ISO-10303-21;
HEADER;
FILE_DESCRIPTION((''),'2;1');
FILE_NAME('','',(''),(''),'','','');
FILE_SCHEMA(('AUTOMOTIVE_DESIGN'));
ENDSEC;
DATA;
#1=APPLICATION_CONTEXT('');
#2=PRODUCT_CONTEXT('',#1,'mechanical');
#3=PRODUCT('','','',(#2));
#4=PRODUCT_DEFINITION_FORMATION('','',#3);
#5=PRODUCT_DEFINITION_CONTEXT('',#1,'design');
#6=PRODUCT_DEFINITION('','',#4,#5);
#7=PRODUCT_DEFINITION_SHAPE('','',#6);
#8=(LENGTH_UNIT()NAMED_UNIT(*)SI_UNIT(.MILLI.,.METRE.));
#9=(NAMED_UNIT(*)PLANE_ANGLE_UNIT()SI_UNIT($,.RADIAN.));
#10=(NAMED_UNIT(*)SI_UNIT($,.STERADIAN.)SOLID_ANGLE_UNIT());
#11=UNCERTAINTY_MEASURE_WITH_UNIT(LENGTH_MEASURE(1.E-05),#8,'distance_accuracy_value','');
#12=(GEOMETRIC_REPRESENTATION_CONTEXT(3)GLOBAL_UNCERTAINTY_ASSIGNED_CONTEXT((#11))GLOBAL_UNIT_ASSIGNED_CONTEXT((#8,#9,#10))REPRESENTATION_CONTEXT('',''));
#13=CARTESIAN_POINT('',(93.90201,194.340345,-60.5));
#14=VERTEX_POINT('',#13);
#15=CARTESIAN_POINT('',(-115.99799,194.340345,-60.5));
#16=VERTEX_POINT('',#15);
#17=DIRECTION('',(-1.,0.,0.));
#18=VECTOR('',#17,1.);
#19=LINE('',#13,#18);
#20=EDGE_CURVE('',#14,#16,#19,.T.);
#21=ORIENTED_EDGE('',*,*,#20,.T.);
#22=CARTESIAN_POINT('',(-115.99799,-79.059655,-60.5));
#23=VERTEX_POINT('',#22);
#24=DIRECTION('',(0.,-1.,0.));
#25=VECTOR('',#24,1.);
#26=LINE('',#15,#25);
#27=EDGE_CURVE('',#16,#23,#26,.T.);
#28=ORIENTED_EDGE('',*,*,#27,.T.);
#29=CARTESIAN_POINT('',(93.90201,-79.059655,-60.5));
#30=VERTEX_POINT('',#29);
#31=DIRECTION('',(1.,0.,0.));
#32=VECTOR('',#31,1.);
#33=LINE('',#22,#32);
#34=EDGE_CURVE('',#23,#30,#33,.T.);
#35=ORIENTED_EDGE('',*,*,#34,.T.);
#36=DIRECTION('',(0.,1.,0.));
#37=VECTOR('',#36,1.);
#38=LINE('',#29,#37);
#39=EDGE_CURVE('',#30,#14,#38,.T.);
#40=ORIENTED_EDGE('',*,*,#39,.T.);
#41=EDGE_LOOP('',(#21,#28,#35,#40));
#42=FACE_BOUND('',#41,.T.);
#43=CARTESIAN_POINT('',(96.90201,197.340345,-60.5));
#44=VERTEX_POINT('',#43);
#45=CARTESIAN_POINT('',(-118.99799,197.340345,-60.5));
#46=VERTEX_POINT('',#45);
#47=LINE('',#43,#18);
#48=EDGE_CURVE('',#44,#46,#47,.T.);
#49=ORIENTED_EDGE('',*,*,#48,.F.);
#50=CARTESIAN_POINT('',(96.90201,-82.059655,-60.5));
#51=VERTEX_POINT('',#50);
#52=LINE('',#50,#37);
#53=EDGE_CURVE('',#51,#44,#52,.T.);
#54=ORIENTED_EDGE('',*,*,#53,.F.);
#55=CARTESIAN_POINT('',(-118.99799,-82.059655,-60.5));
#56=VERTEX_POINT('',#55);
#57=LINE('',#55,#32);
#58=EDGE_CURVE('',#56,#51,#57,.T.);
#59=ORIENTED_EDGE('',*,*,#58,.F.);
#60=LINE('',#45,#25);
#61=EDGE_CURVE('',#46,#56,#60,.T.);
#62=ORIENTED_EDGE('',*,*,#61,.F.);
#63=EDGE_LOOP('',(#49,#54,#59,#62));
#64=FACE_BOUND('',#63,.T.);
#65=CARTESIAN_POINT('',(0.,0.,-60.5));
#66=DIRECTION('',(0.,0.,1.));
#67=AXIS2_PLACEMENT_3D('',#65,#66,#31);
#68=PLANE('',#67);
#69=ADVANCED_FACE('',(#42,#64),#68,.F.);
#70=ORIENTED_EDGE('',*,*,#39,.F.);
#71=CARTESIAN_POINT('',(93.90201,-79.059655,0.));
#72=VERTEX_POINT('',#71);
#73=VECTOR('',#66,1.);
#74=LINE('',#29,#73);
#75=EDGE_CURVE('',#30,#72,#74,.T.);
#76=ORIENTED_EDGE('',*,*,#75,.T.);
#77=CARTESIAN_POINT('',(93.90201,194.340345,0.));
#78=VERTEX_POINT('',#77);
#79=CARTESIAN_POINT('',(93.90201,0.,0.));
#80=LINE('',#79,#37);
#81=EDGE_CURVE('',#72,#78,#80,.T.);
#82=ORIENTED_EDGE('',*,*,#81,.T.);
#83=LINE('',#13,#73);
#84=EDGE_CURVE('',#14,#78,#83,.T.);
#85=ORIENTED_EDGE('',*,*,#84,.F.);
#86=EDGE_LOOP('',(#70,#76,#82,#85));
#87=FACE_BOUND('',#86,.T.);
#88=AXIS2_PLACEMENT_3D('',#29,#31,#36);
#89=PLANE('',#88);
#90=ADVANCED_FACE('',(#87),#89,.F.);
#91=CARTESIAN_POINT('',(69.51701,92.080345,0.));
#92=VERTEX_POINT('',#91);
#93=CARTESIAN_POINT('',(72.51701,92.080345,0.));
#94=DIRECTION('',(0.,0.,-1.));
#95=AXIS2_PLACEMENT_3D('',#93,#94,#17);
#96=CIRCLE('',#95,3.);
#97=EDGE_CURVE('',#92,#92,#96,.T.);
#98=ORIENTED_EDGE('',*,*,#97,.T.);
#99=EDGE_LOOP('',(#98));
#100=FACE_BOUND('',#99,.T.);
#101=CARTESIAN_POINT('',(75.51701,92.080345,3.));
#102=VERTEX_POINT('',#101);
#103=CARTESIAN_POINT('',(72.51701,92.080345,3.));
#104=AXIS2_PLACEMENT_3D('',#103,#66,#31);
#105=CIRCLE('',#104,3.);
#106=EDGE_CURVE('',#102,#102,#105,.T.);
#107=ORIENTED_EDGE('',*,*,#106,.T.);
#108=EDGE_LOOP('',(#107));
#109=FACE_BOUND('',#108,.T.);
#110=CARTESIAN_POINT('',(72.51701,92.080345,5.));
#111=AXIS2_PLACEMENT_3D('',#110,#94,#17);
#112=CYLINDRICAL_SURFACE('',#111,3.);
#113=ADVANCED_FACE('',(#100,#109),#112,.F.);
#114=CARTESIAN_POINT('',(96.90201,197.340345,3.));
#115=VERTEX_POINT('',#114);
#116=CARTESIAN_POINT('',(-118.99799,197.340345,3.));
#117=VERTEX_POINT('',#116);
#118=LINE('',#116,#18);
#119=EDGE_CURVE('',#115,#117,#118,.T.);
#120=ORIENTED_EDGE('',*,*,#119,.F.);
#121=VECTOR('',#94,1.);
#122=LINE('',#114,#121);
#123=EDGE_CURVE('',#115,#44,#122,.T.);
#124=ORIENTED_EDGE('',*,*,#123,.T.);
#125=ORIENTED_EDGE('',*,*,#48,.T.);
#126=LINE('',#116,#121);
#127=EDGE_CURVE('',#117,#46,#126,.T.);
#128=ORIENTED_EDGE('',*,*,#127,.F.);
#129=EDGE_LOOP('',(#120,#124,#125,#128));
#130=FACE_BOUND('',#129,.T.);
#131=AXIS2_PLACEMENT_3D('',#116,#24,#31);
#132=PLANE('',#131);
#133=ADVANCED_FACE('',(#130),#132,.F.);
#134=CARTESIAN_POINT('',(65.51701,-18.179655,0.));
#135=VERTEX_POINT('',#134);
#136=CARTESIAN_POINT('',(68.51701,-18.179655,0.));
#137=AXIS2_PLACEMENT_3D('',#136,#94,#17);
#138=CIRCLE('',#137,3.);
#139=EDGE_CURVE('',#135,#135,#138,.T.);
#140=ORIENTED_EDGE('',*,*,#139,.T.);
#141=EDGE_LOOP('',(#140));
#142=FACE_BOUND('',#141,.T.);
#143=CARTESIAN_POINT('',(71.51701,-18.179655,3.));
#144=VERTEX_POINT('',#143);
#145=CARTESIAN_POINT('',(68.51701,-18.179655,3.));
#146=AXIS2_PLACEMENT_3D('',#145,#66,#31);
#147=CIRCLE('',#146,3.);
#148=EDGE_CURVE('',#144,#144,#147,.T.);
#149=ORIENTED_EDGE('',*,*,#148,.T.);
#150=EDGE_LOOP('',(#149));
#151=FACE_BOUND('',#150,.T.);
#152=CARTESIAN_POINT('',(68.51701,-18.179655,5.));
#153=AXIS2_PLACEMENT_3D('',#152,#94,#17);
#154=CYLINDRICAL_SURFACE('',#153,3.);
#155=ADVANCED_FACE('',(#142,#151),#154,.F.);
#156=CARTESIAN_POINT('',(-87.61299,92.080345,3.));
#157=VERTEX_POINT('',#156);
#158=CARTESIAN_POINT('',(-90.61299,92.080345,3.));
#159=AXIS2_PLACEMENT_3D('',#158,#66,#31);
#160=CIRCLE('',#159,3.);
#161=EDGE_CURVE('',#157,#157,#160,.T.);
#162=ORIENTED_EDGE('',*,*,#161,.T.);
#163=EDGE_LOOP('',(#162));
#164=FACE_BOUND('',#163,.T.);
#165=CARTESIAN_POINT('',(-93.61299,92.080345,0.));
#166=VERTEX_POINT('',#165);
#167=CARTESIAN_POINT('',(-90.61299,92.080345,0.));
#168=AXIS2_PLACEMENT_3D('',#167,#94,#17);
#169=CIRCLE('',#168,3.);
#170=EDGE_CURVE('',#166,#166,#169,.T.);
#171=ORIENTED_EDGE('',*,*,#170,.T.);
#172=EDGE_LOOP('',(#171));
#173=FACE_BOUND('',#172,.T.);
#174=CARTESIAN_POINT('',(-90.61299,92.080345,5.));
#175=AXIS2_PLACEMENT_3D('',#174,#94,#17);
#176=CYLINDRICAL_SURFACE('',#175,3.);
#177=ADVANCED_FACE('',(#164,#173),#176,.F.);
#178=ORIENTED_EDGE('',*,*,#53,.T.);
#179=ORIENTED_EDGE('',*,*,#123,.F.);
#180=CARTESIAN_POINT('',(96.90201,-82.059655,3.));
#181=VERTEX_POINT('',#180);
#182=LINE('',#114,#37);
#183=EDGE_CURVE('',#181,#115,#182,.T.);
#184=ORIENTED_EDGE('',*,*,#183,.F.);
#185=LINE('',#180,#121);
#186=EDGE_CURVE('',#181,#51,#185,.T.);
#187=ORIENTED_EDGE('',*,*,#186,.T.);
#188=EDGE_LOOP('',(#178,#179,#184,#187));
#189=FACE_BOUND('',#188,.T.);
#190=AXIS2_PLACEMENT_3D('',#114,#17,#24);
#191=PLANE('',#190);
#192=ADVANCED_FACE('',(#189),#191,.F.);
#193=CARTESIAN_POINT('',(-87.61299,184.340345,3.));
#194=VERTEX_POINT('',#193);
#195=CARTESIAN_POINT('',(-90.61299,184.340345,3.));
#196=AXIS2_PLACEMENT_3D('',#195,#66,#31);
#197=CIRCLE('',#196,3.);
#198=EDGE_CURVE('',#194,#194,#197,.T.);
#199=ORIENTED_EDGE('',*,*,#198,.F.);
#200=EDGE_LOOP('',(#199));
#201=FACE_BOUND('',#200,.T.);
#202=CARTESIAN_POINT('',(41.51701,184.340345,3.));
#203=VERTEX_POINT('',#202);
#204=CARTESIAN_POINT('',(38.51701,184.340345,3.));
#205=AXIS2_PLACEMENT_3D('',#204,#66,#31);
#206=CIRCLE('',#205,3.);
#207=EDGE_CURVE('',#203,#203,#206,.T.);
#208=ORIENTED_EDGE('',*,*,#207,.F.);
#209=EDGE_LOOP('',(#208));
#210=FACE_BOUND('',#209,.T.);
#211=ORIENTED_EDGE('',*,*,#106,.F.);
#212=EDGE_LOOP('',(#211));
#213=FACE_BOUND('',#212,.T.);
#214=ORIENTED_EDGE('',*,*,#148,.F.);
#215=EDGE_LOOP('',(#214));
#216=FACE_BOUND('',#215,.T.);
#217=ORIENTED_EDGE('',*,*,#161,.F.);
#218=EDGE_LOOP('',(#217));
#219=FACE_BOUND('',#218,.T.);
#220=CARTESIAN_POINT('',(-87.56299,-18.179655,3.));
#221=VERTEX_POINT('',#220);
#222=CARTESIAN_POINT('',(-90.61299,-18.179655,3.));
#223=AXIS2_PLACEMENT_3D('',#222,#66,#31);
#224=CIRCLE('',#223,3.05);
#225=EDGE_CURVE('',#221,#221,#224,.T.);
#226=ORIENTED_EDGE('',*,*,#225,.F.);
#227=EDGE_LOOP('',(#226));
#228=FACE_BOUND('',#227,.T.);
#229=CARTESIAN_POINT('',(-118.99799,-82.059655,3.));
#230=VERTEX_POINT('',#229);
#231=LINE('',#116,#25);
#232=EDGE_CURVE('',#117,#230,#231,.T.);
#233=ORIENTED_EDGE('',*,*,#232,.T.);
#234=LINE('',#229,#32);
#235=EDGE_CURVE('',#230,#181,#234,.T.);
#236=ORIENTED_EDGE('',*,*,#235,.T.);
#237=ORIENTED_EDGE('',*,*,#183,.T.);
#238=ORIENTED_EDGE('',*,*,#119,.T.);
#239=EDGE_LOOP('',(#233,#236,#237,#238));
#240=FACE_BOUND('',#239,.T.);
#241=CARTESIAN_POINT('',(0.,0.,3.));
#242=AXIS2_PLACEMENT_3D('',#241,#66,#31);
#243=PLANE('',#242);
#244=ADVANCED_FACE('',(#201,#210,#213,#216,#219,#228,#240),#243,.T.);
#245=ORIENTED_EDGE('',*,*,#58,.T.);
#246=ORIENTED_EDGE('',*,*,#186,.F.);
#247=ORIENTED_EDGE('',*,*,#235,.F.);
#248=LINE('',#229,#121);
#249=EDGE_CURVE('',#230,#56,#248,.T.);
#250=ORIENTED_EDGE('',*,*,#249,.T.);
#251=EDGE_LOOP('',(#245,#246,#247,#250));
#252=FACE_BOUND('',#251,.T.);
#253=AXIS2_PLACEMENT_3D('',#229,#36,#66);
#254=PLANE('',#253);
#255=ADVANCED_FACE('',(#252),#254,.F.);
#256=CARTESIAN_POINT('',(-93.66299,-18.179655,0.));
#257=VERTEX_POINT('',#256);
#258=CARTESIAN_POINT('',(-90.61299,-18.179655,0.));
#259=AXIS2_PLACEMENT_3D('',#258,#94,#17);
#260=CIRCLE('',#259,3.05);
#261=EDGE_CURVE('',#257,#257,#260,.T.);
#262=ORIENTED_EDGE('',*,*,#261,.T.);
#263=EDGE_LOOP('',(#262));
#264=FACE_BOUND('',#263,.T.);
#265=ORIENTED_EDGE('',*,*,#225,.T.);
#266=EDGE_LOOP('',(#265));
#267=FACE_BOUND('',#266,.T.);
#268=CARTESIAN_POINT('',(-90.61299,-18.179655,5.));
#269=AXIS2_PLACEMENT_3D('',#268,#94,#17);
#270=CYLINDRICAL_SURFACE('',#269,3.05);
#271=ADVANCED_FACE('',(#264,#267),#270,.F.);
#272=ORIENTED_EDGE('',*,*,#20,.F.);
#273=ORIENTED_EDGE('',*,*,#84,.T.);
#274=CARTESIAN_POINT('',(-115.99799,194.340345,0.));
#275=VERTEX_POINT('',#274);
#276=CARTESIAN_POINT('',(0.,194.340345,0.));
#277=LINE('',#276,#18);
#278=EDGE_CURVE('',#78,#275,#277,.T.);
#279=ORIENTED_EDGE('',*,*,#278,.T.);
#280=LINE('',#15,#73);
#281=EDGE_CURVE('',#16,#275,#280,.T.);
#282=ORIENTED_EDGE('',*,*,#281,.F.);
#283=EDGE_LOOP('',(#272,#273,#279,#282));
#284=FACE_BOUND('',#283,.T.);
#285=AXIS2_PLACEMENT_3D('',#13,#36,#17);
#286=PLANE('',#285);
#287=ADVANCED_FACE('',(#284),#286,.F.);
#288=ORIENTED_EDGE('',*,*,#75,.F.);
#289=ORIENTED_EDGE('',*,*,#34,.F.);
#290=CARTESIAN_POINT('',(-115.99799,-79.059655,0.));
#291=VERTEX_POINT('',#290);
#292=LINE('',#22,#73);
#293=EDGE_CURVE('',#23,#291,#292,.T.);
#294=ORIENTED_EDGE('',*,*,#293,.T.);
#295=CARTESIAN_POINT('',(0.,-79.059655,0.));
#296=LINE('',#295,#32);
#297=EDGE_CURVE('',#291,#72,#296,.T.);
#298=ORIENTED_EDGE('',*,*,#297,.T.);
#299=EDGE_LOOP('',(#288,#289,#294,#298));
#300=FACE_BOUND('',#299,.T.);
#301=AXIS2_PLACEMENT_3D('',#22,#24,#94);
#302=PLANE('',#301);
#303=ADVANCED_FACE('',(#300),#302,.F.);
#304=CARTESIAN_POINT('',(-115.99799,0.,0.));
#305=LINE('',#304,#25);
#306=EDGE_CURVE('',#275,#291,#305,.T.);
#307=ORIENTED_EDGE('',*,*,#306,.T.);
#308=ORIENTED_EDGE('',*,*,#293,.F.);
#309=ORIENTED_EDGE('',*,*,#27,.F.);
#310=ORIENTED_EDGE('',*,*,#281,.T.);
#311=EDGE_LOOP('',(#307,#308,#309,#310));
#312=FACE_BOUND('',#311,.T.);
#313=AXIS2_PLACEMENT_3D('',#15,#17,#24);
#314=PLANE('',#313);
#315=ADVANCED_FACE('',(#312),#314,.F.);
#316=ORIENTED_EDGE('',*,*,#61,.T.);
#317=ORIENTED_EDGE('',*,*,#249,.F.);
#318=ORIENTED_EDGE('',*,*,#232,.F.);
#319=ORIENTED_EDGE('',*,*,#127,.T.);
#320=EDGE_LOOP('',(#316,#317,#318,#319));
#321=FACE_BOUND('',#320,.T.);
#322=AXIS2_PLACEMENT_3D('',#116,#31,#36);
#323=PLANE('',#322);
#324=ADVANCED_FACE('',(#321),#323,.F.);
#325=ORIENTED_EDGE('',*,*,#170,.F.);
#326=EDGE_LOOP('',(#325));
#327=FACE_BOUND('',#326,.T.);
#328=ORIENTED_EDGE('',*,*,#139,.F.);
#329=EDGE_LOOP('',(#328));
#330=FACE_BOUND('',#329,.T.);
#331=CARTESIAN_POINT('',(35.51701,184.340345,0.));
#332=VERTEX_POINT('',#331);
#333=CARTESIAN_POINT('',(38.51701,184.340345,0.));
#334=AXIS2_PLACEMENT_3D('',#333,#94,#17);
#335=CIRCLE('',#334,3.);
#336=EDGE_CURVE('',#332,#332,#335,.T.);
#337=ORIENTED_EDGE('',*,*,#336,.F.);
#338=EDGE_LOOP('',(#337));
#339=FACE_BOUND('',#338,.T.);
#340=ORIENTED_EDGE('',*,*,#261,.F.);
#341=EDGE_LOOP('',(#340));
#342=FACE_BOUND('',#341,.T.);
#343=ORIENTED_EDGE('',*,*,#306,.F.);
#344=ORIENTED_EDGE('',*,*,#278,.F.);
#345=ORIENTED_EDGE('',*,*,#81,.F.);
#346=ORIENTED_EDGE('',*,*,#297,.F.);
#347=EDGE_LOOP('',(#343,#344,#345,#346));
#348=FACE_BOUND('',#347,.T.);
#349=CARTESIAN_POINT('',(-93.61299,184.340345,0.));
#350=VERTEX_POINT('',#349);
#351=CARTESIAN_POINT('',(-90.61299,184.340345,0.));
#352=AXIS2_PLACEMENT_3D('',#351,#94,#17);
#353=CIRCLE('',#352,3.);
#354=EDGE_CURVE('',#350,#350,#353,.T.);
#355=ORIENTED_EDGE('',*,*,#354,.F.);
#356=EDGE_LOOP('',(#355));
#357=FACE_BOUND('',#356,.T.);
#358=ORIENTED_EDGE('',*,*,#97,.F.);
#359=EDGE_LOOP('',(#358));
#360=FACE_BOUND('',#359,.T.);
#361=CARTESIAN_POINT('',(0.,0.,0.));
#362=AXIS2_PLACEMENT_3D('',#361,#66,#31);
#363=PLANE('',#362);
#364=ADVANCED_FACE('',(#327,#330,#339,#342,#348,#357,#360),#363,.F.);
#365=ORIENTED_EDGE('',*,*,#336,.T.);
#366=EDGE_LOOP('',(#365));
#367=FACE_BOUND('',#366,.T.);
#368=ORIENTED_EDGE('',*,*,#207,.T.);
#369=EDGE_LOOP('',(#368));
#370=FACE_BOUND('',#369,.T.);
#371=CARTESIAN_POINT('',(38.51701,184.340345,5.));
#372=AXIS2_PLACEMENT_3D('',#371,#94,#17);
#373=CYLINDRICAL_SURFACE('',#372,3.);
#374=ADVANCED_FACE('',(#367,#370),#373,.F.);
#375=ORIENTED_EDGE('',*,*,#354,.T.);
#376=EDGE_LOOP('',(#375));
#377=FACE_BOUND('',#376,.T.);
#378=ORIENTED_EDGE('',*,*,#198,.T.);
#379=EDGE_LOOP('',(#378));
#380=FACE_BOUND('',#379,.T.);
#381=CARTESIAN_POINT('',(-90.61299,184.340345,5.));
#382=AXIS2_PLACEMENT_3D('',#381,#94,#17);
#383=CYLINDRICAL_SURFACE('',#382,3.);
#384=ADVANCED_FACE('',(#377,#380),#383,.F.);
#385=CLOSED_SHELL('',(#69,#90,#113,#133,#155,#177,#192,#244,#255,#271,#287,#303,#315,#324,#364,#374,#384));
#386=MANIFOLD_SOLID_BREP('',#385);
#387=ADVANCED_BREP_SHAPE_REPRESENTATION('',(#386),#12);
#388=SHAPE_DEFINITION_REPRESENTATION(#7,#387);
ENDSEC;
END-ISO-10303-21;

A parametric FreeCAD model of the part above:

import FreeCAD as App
import Part
import Sketcher
Q = App.Units.Quantity

doc = App.newDocument("Part")
params = doc.addObject("Spreadsheet::Sheet", "Params")
for row, (alias, value) in enumerate([
    ("sketch1_width", "215.9 mm"),
    ("sketch1_height", "279.4 mm"),
    ("pad1_length", "3 mm"),
    ("sketch2_width", "215.9 mm"),
    ("sketch2_width2", "209.9 mm"),
    ("sketch2_height", "279.4 mm"),
    ("sketch2_height2", "273.4 mm"),
    ("pad2_length", "63.5 mm"),
    ("sketch3_diameter", "6 mm"),
    ("sketch3_diameter2", "6.1 mm"),
    ("pocket1_length", "5 mm"),
], start=1):
    params.set(f"A{row}", alias)
    params.set(f"B{row}", "=" + value)
    params.setAlias(f"B{row}", alias)

body = doc.addObject("PartDesign::Body", "Body")

# Sketch on XY plane
sketch1 = doc.addObject("Sketcher::SketchObject", "Sketch")
body.addObject(sketch1)
sketch1.AttachmentSupport = (doc.XY_Plane, [""])
sketch1.MapMode = "FlatFace"
sketch1.addGeometry([
    Part.LineSegment(App.Vector(-119, 197, 0), App.Vector(-119, -82, 0)),
    Part.LineSegment(App.Vector(-119, -82, 0), App.Vector(97, -82, 0)),
    Part.LineSegment(App.Vector(97, -82, 0), App.Vector(97, 197, 0)),
    Part.LineSegment(App.Vector(97, 197, 0), App.Vector(-119, 197, 0)),
], False)
sketch1.addConstraint([
    Sketcher.Constraint("Coincident", 0, 2, 1, 1),
    Sketcher.Constraint("Coincident", 1, 2, 2, 1),
    Sketcher.Constraint("Coincident", 2, 2, 3, 1),
    Sketcher.Constraint("Coincident", 3, 2, 0, 1),
    Sketcher.Constraint("Vertical", 0),
    Sketcher.Constraint("Horizontal", 1),
    Sketcher.Constraint("Vertical", 2),
    Sketcher.Constraint("Horizontal", 3),
    Sketcher.Constraint("DistanceX", 1, 1, 1, 2, Q("215.9 mm")),
    Sketcher.Constraint("DistanceY", 0, 2, 0, 1, Q("279.4 mm")),
    Sketcher.Constraint("DistanceX", 0, 2, -1, 1, Q("118.99799 mm")),
    Sketcher.Constraint("DistanceY", 0, 2, -1, 1, Q("82.059655 mm")),
])
sketch1.setExpression("Constraints[8]", "Params.sketch1_width")
sketch1.setExpression("Constraints[9]", "Params.sketch1_height")
pad1 = doc.addObject("PartDesign::Pad", "Pad")
body.addObject(pad1)
pad1.Profile = sketch1
pad1.setExpression("Length", "Params.pad1_length")

# Sketch on XY plane
sketch2 = doc.addObject("Sketcher::SketchObject", "Sketch001")
body.addObject(sketch2)
sketch2.AttachmentSupport = (doc.XY_Plane, [""])
sketch2.MapMode = "FlatFace"
sketch2.AttachmentOffset = App.Placement(App.Vector(0, 0, 3), App.Rotation())
sketch2.addGeometry([
    Part.LineSegment(App.Vector(-119, 197, 0), App.Vector(-119, -82, 0)),  # 0
    Part.LineSegment(App.Vector(-119, -82, 0), App.Vector(97, -82, 0)),  # 1
    Part.LineSegment(App.Vector(97, -82, 0), App.Vector(97, 197, 0)),  # 2
    Part.LineSegment(App.Vector(97, 197, 0), App.Vector(-119, 197, 0)),  # 3
    Part.LineSegment(App.Vector(94, -79, 0), App.Vector(-116, -79, 0)),  # 4
    Part.LineSegment(App.Vector(-116, -79, 0), App.Vector(-116, 194, 0)),  # 5
    Part.LineSegment(App.Vector(-116, 194, 0), App.Vector(94, 194, 0)),  # 6
    Part.LineSegment(App.Vector(94, 194, 0), App.Vector(94, -79, 0)),  # 7
], False)
sketch2.addConstraint([
    Sketcher.Constraint("Coincident", 0, 2, 1, 1),
    Sketcher.Constraint("Coincident", 1, 2, 2, 1),
    Sketcher.Constraint("Coincident", 2, 2, 3, 1),
    Sketcher.Constraint("Coincident", 3, 2, 0, 1),
    Sketcher.Constraint("Coincident", 4, 2, 5, 1),
    Sketcher.Constraint("Coincident", 5, 2, 6, 1),
    Sketcher.Constraint("Coincident", 6, 2, 7, 1),
    Sketcher.Constraint("Coincident", 7, 2, 4, 1),
    Sketcher.Constraint("Vertical", 0),
    Sketcher.Constraint("Horizontal", 1),
    Sketcher.Constraint("Vertical", 2),
    Sketcher.Constraint("Horizontal", 3),
    Sketcher.Constraint("Horizontal", 4),
    Sketcher.Constraint("Vertical", 5),
    Sketcher.Constraint("Horizontal", 6),
    Sketcher.Constraint("Vertical", 7),
    Sketcher.Constraint("DistanceX", 1, 1, 1, 2, Q("215.9 mm")),
    Sketcher.Constraint("DistanceX", 4, 2, 4, 1, Q("209.9 mm")),
    Sketcher.Constraint("DistanceY", 0, 2, 0, 1, Q("279.4 mm")),
    Sketcher.Constraint("DistanceY", 5, 1, 5, 2, Q("273.4 mm")),
    Sketcher.Constraint("DistanceX", 0, 2, 4, 2, Q("3 mm")),
    Sketcher.Constraint("DistanceY", 0, 2, 4, 2, Q("3 mm")),
    Sketcher.Constraint("DistanceX", 0, 2, -1, 1, Q("118.99799 mm")),
    Sketcher.Constraint("DistanceY", 0, 2, -1, 1, Q("82.059655 mm")),
])
sketch2.setExpression("Constraints[16]", "Params.sketch2_width")
sketch2.setExpression("Constraints[17]", "Params.sketch2_width2")
sketch2.setExpression("Constraints[18]", "Params.sketch2_height")
sketch2.setExpression("Constraints[19]", "Params.sketch2_height2")
pad2 = doc.addObject("PartDesign::Pad", "Pad001")
body.addObject(pad2)
pad2.Profile = sketch2
pad2.setExpression("Length", "Params.pad2_length")
pad2.Reversed = True

# Sketch on XY plane
sketch3 = doc.addObject("Sketcher::SketchObject", "Sketch002")
body.addObject(sketch3)
sketch3.AttachmentSupport = (doc.XY_Plane, [""])
sketch3.MapMode = "FlatFace"
sketch3.addGeometry([
    Part.Circle(App.Vector(68.5, -18.2, 0), App.Vector(0, 0, 1), 3),  # 0
    Part.Circle(App.Vector(72.5, 92.1, 0), App.Vector(0, 0, 1), 3),  # 1
    Part.Circle(App.Vector(38.5, 184.3, 0), App.Vector(0, 0, 1), 3),  # 2
    Part.Circle(App.Vector(-90.6, 92.1, 0), App.Vector(0, 0, 1), 3),  # 3
    Part.Circle(App.Vector(58.7, -93.1, 0), App.Vector(0, 0, 1), 3),  # 4
    Part.Circle(App.Vector(-90.6, 184.3, 0), App.Vector(0, 0, 1), 3),  # 5
    Part.Circle(App.Vector(-90.6, -18.2, 0), App.Vector(0, 0, 1), 3),  # 6
], False)
sketch3.addConstraint([
    Sketcher.Constraint("Equal", 0, 1),
    Sketcher.Constraint("Equal", 1, 2),
    Sketcher.Constraint("Equal", 2, 3),
    Sketcher.Constraint("Equal", 3, 4),
    Sketcher.Constraint("Equal", 4, 5),
    Sketcher.Constraint("Horizontal", 1, 3, 3, 3),
    Sketcher.Constraint("Horizontal", 2, 3, 5, 3),
    Sketcher.Constraint("Horizontal", 0, 3, 6, 3),
    Sketcher.Constraint("Vertical", 3, 3, 5, 3),
    Sketcher.Constraint("Vertical", 5, 3, 6, 3),
    Sketcher.Constraint("Diameter", 0, Q("6 mm")),
    Sketcher.Constraint("Diameter", 6, Q("6.1 mm")),
    Sketcher.Constraint("DistanceX", 0, 3, 1, 3, Q("4 mm")),
    Sketcher.Constraint("DistanceX", 2, 3, 1, 3, Q("34 mm")),
    Sketcher.Constraint("DistanceY", 0, 3, 1, 3, Q("110.26 mm")),
    Sketcher.Constraint("DistanceY", 1, 3, 2, 3, Q("92.26 mm")),
    Sketcher.Constraint("DistanceX", 3, 3, 2, 3, Q("129.13 mm")),
    Sketcher.Constraint("DistanceX", 4, 3, 0, 3, Q("9.805 mm")),
    Sketcher.Constraint("DistanceY", 4, 3, -1, 1, Q("93.094202 mm")),
    Sketcher.Constraint("DistanceX", -1, 1, 0, 3, Q("68.51701 mm")),
    Sketcher.Constraint("DistanceY", 0, 3, -1, 1, Q("18.179655 mm")),
])
sketch3.setExpression("Constraints[10]", "Params.sketch3_diameter")
sketch3.setExpression("Constraints[11]", "Params.sketch3_diameter2")
pocket1 = doc.addObject("PartDesign::Pocket", "Pocket")
body.addObject(pocket1)
pocket1.Profile = sketch3
pocket1.setExpression("Length", "Params.pocket1_length")
pocket1.Reversed = True

doc.recompute()
